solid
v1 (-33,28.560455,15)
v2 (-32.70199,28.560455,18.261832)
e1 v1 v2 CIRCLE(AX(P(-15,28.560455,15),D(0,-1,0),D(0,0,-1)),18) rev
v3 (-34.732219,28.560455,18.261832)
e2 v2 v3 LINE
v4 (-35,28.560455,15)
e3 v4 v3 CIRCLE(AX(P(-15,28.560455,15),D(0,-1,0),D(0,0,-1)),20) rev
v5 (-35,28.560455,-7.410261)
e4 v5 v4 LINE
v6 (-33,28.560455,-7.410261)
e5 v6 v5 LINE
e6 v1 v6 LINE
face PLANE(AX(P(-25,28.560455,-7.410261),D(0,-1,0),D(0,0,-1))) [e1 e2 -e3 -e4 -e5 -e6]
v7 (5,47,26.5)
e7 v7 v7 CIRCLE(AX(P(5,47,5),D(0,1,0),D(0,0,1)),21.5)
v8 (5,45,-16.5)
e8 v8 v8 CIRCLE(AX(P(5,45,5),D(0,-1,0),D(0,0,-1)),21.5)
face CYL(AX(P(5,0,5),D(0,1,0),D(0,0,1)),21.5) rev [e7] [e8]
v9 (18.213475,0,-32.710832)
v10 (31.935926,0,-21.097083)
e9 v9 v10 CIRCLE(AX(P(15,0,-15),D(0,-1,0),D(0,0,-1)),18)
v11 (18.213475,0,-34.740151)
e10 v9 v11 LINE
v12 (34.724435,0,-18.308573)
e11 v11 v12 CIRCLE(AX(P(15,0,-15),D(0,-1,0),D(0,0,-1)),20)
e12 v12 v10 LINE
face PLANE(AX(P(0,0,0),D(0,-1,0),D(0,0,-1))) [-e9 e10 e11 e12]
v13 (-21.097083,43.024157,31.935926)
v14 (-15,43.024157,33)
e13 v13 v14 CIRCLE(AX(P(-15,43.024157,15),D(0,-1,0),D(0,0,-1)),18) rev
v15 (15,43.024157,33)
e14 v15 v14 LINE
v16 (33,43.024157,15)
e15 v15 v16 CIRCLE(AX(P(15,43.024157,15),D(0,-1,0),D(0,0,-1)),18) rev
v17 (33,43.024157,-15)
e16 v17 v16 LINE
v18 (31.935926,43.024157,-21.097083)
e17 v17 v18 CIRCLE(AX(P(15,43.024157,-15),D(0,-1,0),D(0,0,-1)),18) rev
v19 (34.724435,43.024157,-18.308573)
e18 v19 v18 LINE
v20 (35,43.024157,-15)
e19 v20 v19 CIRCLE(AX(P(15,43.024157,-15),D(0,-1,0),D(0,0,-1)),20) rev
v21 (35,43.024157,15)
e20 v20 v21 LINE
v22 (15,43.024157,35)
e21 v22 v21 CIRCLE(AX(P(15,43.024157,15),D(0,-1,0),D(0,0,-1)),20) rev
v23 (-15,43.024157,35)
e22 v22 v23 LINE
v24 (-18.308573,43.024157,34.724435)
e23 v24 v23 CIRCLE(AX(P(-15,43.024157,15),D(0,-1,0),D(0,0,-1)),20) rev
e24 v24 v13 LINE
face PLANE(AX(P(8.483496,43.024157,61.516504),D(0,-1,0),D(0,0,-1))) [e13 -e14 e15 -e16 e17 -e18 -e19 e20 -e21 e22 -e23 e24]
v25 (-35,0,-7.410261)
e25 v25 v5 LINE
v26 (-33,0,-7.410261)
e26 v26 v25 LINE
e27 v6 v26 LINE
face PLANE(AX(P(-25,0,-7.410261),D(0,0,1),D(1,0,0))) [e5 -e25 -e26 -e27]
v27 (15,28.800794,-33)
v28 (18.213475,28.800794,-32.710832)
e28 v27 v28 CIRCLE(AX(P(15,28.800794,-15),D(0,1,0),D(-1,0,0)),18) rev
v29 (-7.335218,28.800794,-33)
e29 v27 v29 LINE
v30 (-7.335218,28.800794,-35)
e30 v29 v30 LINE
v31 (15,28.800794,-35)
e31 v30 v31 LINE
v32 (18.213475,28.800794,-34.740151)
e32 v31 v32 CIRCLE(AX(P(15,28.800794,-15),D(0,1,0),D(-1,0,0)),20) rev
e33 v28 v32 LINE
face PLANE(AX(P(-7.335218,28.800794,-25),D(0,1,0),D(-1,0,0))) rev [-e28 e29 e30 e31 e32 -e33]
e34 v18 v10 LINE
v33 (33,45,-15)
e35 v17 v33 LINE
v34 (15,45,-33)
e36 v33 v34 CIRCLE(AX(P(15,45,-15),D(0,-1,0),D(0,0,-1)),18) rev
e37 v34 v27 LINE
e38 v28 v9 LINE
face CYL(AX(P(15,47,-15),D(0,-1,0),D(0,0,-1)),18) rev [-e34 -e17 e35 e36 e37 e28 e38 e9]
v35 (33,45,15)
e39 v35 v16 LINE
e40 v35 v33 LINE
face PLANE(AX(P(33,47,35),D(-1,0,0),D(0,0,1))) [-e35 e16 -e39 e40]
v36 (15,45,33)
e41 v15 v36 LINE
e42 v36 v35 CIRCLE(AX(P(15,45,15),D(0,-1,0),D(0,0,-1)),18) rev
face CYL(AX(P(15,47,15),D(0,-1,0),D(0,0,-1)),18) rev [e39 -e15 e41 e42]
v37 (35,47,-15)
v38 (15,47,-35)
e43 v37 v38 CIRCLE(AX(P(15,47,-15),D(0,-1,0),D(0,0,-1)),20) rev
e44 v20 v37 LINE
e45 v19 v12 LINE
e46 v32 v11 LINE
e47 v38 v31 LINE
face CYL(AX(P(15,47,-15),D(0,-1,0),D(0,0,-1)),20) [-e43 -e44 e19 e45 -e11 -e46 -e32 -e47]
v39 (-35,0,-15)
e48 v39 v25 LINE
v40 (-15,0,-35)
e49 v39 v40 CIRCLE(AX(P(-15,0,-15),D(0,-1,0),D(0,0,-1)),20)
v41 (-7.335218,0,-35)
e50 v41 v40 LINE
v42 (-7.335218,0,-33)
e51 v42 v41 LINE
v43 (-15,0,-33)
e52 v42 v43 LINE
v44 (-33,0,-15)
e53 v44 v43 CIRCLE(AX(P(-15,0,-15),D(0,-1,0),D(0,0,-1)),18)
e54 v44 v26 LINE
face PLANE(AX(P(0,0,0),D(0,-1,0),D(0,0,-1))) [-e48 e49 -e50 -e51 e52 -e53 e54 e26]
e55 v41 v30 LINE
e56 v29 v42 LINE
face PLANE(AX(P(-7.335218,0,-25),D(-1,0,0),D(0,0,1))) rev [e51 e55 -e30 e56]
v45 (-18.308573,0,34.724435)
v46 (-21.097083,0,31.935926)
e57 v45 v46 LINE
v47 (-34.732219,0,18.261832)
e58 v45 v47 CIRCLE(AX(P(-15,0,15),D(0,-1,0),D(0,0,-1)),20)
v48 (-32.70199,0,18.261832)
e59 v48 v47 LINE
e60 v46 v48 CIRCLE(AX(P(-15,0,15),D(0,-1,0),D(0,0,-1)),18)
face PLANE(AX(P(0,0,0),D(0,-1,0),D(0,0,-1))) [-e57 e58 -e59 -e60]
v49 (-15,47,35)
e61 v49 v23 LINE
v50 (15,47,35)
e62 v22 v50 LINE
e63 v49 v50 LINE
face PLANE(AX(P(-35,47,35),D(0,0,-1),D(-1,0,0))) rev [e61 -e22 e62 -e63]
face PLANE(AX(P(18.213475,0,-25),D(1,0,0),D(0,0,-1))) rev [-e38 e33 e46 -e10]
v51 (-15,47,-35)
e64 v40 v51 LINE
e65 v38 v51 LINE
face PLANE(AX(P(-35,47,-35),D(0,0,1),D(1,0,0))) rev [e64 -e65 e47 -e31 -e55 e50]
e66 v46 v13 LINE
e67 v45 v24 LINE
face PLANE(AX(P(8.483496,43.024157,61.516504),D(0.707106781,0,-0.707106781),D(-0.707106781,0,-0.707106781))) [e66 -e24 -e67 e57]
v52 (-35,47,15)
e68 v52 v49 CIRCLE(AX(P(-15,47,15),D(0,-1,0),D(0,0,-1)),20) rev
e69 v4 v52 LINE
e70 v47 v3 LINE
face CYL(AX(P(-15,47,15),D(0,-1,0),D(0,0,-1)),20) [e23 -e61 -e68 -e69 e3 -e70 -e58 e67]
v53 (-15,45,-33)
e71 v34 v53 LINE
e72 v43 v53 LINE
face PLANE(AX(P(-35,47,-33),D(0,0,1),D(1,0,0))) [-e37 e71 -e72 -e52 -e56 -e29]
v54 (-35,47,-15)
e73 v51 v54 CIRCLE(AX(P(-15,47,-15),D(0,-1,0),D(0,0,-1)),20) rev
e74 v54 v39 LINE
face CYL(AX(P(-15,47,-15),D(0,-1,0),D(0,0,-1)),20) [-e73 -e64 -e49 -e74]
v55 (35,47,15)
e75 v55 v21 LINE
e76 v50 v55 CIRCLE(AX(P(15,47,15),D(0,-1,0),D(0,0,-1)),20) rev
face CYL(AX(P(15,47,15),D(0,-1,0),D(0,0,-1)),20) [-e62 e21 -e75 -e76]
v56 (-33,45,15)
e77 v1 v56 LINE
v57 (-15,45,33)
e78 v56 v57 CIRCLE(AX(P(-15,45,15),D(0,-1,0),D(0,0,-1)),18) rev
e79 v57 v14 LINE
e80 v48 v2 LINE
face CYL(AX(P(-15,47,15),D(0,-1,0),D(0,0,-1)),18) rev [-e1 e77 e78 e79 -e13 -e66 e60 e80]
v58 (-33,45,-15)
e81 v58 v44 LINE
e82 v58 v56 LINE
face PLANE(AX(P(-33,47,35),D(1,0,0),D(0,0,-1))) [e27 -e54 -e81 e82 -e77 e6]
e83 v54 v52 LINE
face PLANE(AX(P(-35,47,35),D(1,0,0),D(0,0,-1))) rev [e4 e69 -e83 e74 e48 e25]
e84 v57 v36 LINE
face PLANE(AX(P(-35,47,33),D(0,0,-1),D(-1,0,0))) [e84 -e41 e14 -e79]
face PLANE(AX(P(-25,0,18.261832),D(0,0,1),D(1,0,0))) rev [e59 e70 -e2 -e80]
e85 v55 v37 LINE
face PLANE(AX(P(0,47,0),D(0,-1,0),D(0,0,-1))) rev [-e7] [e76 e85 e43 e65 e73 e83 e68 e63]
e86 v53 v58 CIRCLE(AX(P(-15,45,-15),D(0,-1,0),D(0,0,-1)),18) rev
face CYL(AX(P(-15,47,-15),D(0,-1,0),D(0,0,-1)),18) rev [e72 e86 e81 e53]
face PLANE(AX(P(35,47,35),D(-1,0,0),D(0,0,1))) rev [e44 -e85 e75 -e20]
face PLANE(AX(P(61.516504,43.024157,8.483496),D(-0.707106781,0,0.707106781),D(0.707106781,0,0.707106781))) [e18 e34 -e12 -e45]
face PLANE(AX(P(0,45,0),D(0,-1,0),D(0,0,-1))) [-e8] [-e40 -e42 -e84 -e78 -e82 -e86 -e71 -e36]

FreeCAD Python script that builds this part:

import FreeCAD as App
import Part
import Sketcher


def edges_at(feature, points):
    """Names of the edges that pass closest to the given points."""
    edges = feature.Shape.Edges
    near = lambda p: min(range(len(edges)), key=lambda i: edges[i].distToShape(Part.Vertex(*p))[0])
    return sorted({f"Edge{near(p) + 1}" for p in points})


def faces_at(feature, points):
    """Names of the faces that lie closest to the given points."""
    faces = feature.Shape.Faces
    near = lambda p: min(range(len(faces)), key=lambda i: faces[i].distToShape(Part.Vertex(*p))[0])
    return sorted({f"Face{near(p) + 1}" for p in points})

doc = App.newDocument("Part")
params = doc.addObject("Spreadsheet::Sheet", "Params")
for row, (alias, value) in enumerate([
    ("sketch1_width", "70 mm"),
    ("pad1_length", "47 mm"),
    ("fillet_radius", "20 mm"),
    ("thickness_wall", "2 mm"),
    ("sketch2_diameter", "43 mm"),
    ("sketch3_width", "75 mm"),
    ("pocket3_length", "10 mm"),
    ("pocket4_length", "10 mm"),
], start=1):
    params.set(f"A{row}", alias)
    params.set(f"B{row}", "=" + value)
    params.setAlias(f"B{row}", alias)

body = doc.addObject("PartDesign::Body", "Body")

# Sketch on XZ plane
sketch1 = body.newObject("Sketcher::SketchObject", "Sketch")
sketch1.AttachmentSupport = (doc.getObject("XZ_Plane"), [""])
sketch1.MapMode = "FlatFace"
sketch1.addGeometry(Part.LineSegment(App.Vector(-35, -35, 0), App.Vector(-35, 35, 0)), False)
sketch1.addGeometry(Part.LineSegment(App.Vector(-35, 35, 0), App.Vector(35, 35, 0)), False)
sketch1.addGeometry(Part.LineSegment(App.Vector(35, 35, 0), App.Vector(35, -35, 0)), False)
sketch1.addGeometry(Part.LineSegment(App.Vector(35, -35, 0), App.Vector(-35, -35, 0)), False)
sketch1.addConstraint(Sketcher.Constraint("Coincident", 0, 2, 1, 1))
sketch1.addConstraint(Sketcher.Constraint("Coincident", 1, 2, 2, 1))
sketch1.addConstraint(Sketcher.Constraint("Coincident", 2, 2, 3, 1))
sketch1.addConstraint(Sketcher.Constraint("Coincident", 3, 2, 0, 1))
sketch1.addConstraint(Sketcher.Constraint("Vertical", 0))
sketch1.addConstraint(Sketcher.Constraint("Horizontal", 1))
sketch1.addConstraint(Sketcher.Constraint("Vertical", 2))
sketch1.addConstraint(Sketcher.Constraint("Horizontal", 3))
sketch1.addConstraint(Sketcher.Constraint("Symmetric", 0, 2, 2, 2, -1, 1))
sketch1.addConstraint(Sketcher.Constraint("Equal", 3, 0))
sketch1.addConstraint(Sketcher.Constraint("DistanceX", 1, 1, 1, 2, 70.0))
sketch1.setExpression("Constraints[10]", "Params.sketch1_width")
pad1 = body.newObject("PartDesign::Pad", "Pad")
pad1.Profile = sketch1
pad1.setExpression("Length", "Params.pad1_length")
pad1.Reversed = True
doc.recompute()

fillet = body.newObject("PartDesign::Fillet", "Fillet")
fillet.Base = (pad1, edges_at(pad1, [
    (35, 23.5, 35),
    (-35, 23.5, 35),
    (-35, 23.5, -35),
    (35, 23.5, -35),
]))
fillet.setExpression("Radius", "Params.fillet_radius")
doc.recompute()

thickness = body.newObject("PartDesign::Thickness", "Thickness")
thickness.Base = (fillet, faces_at(fillet, [(0, 0, 0)]))
thickness.setExpression("Value", "Params.thickness_wall")
thickness.Reversed = True
thickness.Join = "Intersection"

# Sketch on XZ plane
sketch2 = body.newObject("Sketcher::SketchObject", "Sketch001")
sketch2.AttachmentSupport = (doc.getObject("XZ_Plane"), [""])
sketch2.MapMode = "FlatFace"
sketch2.AttachmentOffset = App.Placement(App.Vector(0, 0, -47), App.Rotation())
sketch2.addGeometry(Part.Circle(App.Vector(5, 5, 0), App.Vector(0, 0, 1), 22), False)
sketch2.addConstraint(Sketcher.Constraint("Diameter", 0, 43.0))
sketch2.addConstraint(Sketcher.Constraint("DistanceX", -1, 1, 0, 3, 5.0))
sketch2.addConstraint(Sketcher.Constraint("DistanceY", -1, 1, 0, 3, 5.0))
sketch2.setExpression("Constraints[0]", "Params.sketch2_diameter")
pocket1 = body.newObject("PartDesign::Pocket", "Pocket")
pocket1.Profile = sketch2
pocket1.Type = "ThroughAll"
pocket1.Reversed = True

# Sketch on an angled plane
sketch3 = body.newObject("Sketcher::SketchObject", "Sketch002")
sketch3.Placement = App.Placement(App.Vector(0, 0, 0), App.Rotation(App.Vector(0.707106781, 0, -0.707106781), App.Vector(0, 0.999999999, 0), App.Vector(0.707106781, 0, 0.707106781), "ZXY"))
sketch3.addGeometry(Part.LineSegment(App.Vector(-37, 43, 0), App.Vector(-37, 0, 0)), False)
sketch3.addGeometry(Part.LineSegment(App.Vector(-37, 0, 0), App.Vector(37, 0, 0)), False)
sketch3.addGeometry(Part.LineSegment(App.Vector(37, 0, 0), App.Vector(37, 43, 0)), False)
sketch3.addGeometry(Part.LineSegment(App.Vector(37, 43, 0), App.Vector(-37, 43, 0)), False)
sketch3.addConstraint(Sketcher.Constraint("Coincident", 0, 2, 1, 1))
sketch3.addConstraint(Sketcher.Constraint("Coincident", 1, 2, 2, 1))
sketch3.addConstraint(Sketcher.Constraint("Coincident", 2, 2, 3, 1))
sketch3.addConstraint(Sketcher.Constraint("Coincident", 3, 2, 0, 1))
sketch3.addConstraint(Sketcher.Constraint("Vertical", 0))
sketch3.addConstraint(Sketcher.Constraint("Horizontal", 1))
sketch3.addConstraint(Sketcher.Constraint("Vertical", 2))
sketch3.addConstraint(Sketcher.Constraint("Horizontal", 3))
sketch3.addConstraint(Sketcher.Constraint("Symmetric", 0, 2, 1, 2, -1, 1))
sketch3.addConstraint(Sketcher.Constraint("DistanceX", 1, 1, 1, 2, 75.0))
sketch3.addConstraint(Sketcher.Constraint("DistanceY", 0, 2, 0, 1, 43.024157))
sketch3.setExpression("Constraints[9]", "Params.sketch3_width")
pocket2 = body.newObject("PartDesign::Pocket", "Pocket001")
pocket2.Profile = sketch3
pocket2.Type = "ThroughAll"
pocket2.Reversed = True

# Sketch on XY plane
sketch4 = body.newObject("Sketcher::SketchObject", "Sketch003")
sketch4.AttachmentSupport = (doc.getObject("XY_Plane"), [""])
sketch4.MapMode = "FlatFace"
sketch4.AttachmentOffset = App.Placement(App.Vector(0, 0, -35), App.Rotation())
sketch4.addGeometry(Part.LineSegment(App.Vector(18, 29, 0), App.Vector(18, 0, 0)), False)
sketch4.addGeometry(Part.LineSegment(App.Vector(18, 0, 0), App.Vector(-7, 0, 0)), False)
sketch4.addGeometry(Part.LineSegment(App.Vector(-7, 0, 0), App.Vector(-7, 29, 0)), False)
sketch4.addGeometry(Part.LineSegment(App.Vector(-7, 29, 0), App.Vector(18, 29, 0)), False)
sketch4.addConstraint(Sketcher.Constraint("Coincident", 0, 2, 1, 1))
sketch4.addConstraint(Sketcher.Constraint("Coincident", 1, 2, 2, 1))
sketch4.addConstraint(Sketcher.Constraint("Coincident", 2, 2, 3, 1))
sketch4.addConstraint(Sketcher.Constraint("Coincident", 3, 2, 0, 1))
sketch4.addConstraint(Sketcher.Constraint("Vertical", 0))
sketch4.addConstraint(Sketcher.Constraint("Horizontal", 1))
sketch4.addConstraint(Sketcher.Constraint("Vertical", 2))
sketch4.addConstraint(Sketcher.Constraint("Horizontal", 3))
sketch4.addConstraint(Sketcher.Constraint("PointOnObject", 0, 2, -1))
sketch4.addConstraint(Sketcher.Constraint("DistanceX", 1, 2, 1, 1, 25.548693))
sketch4.addConstraint(Sketcher.Constraint("DistanceY", 0, 2, 0, 1, 28.800794))
sketch4.addConstraint(Sketcher.Constraint("DistanceX", -1, 1, 0, 2, 18.213475))
pocket3 = body.newObject("PartDesign::Pocket", "Pocket002")
pocket3.Profile = sketch4
pocket3.setExpression("Length", "Params.pocket3_length")
pocket3.Reversed = True

# Sketch on YZ plane
sketch5 = body.newObject("Sketcher::SketchObject", "Sketch004")
sketch5.AttachmentSupport = (doc.getObject("YZ_Plane"), [""])
sketch5.MapMode = "FlatFace"
sketch5.AttachmentOffset = App.Placement(App.Vector(0, 0, -35), App.Rotation())
sketch5.addGeometry(Part.LineSegment(App.Vector(29, -7, 0), App.Vector(0, -7, 0)), False)
sketch5.addGeometry(Part.LineSegment(App.Vector(0, -7, 0), App.Vector(0, 18, 0)), False)
sketch5.addGeometry(Part.LineSegment(App.Vector(0, 18, 0), App.Vector(29, 18, 0)), False)
sketch5.addGeometry(Part.LineSegment(App.Vector(29, 18, 0), App.Vector(29, -7, 0)), False)
sketch5.addConstraint(Sketcher.Constraint("Coincident", 0, 2, 1, 1))
sketch5.addConstraint(Sketcher.Constraint("Coincident", 1, 2, 2, 1))
sketch5.addConstraint(Sketcher.Constraint("Coincident", 2, 2, 3, 1))
sketch5.addConstraint(Sketcher.Constraint("Coincident", 3, 2, 0, 1))
sketch5.addConstraint(Sketcher.Constraint("Horizontal", 0))
sketch5.addConstraint(Sketcher.Constraint("Vertical", 1))
sketch5.addConstraint(Sketcher.Constraint("Horizontal", 2))
sketch5.addConstraint(Sketcher.Constraint("Vertical", 3))
sketch5.addConstraint(Sketcher.Constraint("PointOnObject", 0, 2, -2))
sketch5.addConstraint(Sketcher.Constraint("DistanceX", 0, 2, 0, 1, 28.560455))
sketch5.addConstraint(Sketcher.Constraint("DistanceY", 1, 1, 1, 2, 25.672094))
sketch5.addConstraint(Sketcher.Constraint("DistanceY", 0, 2, -1, 1, 7.410261))
pocket4 = body.newObject("PartDesign::Pocket", "Pocket003")
pocket4.Profile = sketch5
pocket4.setExpression("Length", "Params.pocket4_length")
pocket4.Reversed = True

doc.recompute()
